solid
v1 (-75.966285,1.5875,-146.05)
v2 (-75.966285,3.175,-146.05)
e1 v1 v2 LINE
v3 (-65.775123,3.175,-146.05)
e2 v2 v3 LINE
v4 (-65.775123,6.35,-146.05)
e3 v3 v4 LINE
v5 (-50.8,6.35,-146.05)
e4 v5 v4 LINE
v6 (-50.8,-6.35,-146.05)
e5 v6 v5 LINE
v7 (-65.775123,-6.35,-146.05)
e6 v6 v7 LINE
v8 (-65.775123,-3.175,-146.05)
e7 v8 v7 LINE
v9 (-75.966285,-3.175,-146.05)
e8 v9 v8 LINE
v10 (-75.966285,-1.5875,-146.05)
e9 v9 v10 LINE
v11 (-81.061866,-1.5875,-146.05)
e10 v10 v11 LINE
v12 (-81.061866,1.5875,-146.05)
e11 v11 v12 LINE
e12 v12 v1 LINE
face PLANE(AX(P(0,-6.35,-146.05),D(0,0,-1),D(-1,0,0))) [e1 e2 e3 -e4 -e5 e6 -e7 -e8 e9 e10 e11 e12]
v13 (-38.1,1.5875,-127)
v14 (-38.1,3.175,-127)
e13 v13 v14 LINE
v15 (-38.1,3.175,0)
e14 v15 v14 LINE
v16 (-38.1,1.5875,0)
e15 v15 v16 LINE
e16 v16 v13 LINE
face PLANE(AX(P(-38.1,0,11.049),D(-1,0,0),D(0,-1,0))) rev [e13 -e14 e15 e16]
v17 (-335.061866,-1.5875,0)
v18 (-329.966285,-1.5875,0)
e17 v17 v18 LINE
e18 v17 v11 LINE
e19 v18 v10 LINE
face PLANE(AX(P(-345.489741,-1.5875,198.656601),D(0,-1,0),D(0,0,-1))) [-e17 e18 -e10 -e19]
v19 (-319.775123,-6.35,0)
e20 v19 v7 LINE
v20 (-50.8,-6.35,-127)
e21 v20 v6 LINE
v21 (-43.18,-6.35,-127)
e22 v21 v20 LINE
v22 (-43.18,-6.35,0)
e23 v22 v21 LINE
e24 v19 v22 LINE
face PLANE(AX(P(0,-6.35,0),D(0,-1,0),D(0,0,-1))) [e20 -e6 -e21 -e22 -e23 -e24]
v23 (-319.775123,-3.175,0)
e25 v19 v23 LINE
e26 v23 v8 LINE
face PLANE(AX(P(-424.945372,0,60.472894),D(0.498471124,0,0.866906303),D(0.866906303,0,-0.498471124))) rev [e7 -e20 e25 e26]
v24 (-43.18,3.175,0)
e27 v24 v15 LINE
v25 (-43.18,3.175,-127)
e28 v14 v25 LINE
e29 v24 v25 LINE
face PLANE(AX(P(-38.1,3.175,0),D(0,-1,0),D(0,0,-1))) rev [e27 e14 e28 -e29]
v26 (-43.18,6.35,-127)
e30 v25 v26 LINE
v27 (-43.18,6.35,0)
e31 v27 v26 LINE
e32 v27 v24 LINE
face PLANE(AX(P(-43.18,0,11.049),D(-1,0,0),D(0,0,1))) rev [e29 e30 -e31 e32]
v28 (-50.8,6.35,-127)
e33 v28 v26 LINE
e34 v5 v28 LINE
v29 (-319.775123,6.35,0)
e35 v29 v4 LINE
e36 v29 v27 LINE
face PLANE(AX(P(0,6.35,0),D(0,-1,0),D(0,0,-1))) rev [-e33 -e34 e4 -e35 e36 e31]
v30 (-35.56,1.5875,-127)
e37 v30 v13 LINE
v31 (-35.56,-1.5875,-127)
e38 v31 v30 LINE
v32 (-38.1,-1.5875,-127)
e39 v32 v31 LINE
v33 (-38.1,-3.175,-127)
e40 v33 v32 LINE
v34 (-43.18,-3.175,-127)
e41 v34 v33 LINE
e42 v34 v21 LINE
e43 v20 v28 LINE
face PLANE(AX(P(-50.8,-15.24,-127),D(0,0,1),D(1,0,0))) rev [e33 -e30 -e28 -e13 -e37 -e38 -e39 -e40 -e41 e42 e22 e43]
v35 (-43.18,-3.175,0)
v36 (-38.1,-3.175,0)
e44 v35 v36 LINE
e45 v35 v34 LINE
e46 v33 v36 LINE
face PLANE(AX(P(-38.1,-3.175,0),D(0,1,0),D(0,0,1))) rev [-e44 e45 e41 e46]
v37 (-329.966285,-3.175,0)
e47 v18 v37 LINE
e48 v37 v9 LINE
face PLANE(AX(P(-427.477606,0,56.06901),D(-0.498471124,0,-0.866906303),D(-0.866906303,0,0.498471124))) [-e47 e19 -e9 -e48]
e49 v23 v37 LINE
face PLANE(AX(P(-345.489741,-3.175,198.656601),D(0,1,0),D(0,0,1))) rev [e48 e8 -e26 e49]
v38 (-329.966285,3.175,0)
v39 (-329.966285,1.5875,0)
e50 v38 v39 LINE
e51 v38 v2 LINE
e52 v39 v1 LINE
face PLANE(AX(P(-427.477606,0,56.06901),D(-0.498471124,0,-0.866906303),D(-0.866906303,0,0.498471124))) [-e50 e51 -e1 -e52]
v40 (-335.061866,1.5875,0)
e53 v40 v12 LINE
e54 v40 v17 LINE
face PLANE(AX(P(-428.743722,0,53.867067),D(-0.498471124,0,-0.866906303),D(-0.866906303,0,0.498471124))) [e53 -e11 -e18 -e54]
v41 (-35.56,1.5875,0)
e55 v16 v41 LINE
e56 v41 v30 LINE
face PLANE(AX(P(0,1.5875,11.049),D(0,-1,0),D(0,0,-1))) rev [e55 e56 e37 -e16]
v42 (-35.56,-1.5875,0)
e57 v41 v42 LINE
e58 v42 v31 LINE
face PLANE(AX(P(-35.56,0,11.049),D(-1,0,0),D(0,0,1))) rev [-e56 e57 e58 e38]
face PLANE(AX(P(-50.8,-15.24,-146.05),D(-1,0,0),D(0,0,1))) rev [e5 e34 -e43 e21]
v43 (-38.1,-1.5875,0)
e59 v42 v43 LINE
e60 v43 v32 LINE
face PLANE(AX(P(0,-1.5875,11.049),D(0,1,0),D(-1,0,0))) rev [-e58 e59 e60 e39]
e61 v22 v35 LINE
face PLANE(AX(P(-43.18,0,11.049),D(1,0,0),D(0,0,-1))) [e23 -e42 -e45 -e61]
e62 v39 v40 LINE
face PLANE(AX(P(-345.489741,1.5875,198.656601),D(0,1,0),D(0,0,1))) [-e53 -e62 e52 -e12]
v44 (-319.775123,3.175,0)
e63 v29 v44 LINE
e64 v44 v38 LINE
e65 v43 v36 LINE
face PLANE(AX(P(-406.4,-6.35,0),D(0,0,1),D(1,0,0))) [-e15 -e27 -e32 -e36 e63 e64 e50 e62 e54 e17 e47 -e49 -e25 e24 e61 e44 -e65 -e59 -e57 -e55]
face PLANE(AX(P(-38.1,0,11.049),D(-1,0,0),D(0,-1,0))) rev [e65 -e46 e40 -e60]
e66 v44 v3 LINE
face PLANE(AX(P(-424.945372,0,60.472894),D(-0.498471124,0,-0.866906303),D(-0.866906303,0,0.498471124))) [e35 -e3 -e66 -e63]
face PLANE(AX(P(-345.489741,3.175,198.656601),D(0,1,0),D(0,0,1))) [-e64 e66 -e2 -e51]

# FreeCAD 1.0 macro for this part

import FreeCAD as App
import Part
import Sketcher
from FreeCAD import Vector
Q = App.Units.Quantity

doc = App.newDocument("Part")
params = doc.addObject("Spreadsheet::Sheet", "Params")
for row, (alias, value) in enumerate([
    ("sketch1_width", "16 in"),
    ("sketch1_width2", "6 in"),
    ("sketch1_height", "5.75 in"),
    ("pad1_length", "0.25 in"),
    ("pad1_length2", "0.25 in"),
    ("sketch2_height", "0.125 in"),
    ("pocket1_length", "1.5 in"),
    ("sketch3_height", "5.75 in"),
    ("sketch3_width", "0.125 in"),
    ("pocket2_length", "1.5 in"),
    ("sketch4_length", "1.5 in"),
    ("pocket3_length", "0.125 in"),
    ("sketch5_length", "1.5 in"),
    ("pocket4_length", "0.125 in"),
    ("sketch6_width", "0.2 in"),
    ("sketch6_width2", "0.1 in"),
    ("sketch6_width3", "1.7 in"),
    ("sketch6_height", "0.5 in"),
    ("sketch6_height2", "0.0625 in"),
    ("pocket5_length", "6.185 in"),
    ("sketch7_width", "0.2 in"),
    ("sketch7_width2", "1.7 in"),
    ("sketch7_width3", "0.1 in"),
    ("sketch7_height", "0.5 in"),
    ("sketch7_height2", "0.125 in"),
    ("sketch8_width", "2 in"),
    ("sketch8_height", "0.75 in"),
    ("pocket7_length", "0.85 in"),
], start=1):
    params.set(f"A{row}", alias)
    params.set(f"B{row}", "=" + value)
    params.setAlias(f"B{row}", alias)

body = doc.addObject("PartDesign::Body", "Body")

# Sketch on XZ plane
sketch1 = body.newObject("Sketcher::SketchObject", "Sketch")
sketch1.AttachmentSupport = (doc.getObject("XZ_Plane"), [""])
sketch1.MapMode = "FlatFace"
sketch1.addGeometry([
    Part.LineSegment(Vector(-406, 0, 0), Vector(0, 0, 0)),
    Part.LineSegment(Vector(0, 0, 0), Vector(0, -146, 0)),
    Part.LineSegment(Vector(0, -146, 0), Vector(-152, -146, 0)),
    Part.LineSegment(Vector(-152, -146, 0), Vector(-406, 0, 0)),
], False)
sketch1.addConstraint([
    Sketcher.Constraint("Coincident", 0, 2, 1, 1),
    Sketcher.Constraint("Coincident", 1, 2, 2, 1),
    Sketcher.Constraint("Coincident", 2, 2, 3, 1),
    Sketcher.Constraint("Coincident", 3, 2, 0, 1),
    Sketcher.Constraint("Horizontal", 0),
    Sketcher.Constraint("Vertical", 1),
    Sketcher.Constraint("Horizontal", 2),
    Sketcher.Constraint("Coincident", 0, 2, -1, 1),
    Sketcher.Constraint("DistanceX", 0, 1, 0, 2, Q("16 in")),
    Sketcher.Constraint("DistanceX", 2, 2, 2, 1, Q("6 in")),
    Sketcher.Constraint("DistanceY", 1, 2, 1, 1, Q("5.75 in")),
])
sketch1.setExpression("Constraints[8]", "Params.sketch1_width")
sketch1.setExpression("Constraints[9]", "Params.sketch1_width2")
sketch1.setExpression("Constraints[10]", "Params.sketch1_height")
pad1 = body.newObject("PartDesign::Pad", "Pad")
pad1.Profile = sketch1
pad1.Type = "TwoLengths"
pad1.setExpression("Length", "Params.pad1_length")
pad1.setExpression("Length2", "Params.pad1_length2")
pad1.Reversed = True

# Sketch on an angled plane
sketch2 = body.newObject("Sketcher::SketchObject", "Sketch001")
sketch2.Placement = App.Placement(Vector(-100.979615, 0, -175.616721), App.Rotation(Vector(-0.866906303, 0, 0.498471124), Vector(0, 1, 0), Vector(-0.498471124, 0, -0.866906303), "ZXY"))
sketch2.addGeometry([
    Part.LineSegment(Vector(59.3, 6.3, 0), Vector(59.3, 3.2, 0)),  # 0
    Part.LineSegment(Vector(59.3, 3.2, 0), Vector(352.3, 3.2, 0)),  # 1
    Part.LineSegment(Vector(352.3, 3.2, 0), Vector(352.3, 6.3, 0)),  # 2
    Part.LineSegment(Vector(352.3, 6.3, 0), Vector(59.3, 6.3, 0)),  # 3
    Part.LineSegment(Vector(59.3, -3.2, 0), Vector(59.3, -6.3, 0)),  # 4
    Part.LineSegment(Vector(59.3, -6.3, 0), Vector(352.3, -6.3, 0)),  # 5
    Part.LineSegment(Vector(352.3, -6.3, 0), Vector(352.3, -3.2, 0)),  # 6
    Part.LineSegment(Vector(352.3, -3.2, 0), Vector(59.3, -3.2, 0)),  # 7
], False)
sketch2.addConstraint([
    Sketcher.Constraint("Coincident", 0, 2, 1, 1),
    Sketcher.Constraint("Coincident", 1, 2, 2, 1),
    Sketcher.Constraint("Coincident", 2, 2, 3, 1),
    Sketcher.Constraint("Coincident", 3, 2, 0, 1),
    Sketcher.Constraint("Coincident", 4, 2, 5, 1),
    Sketcher.Constraint("Coincident", 5, 2, 6, 1),
    Sketcher.Constraint("Coincident", 6, 2, 7, 1),
    Sketcher.Constraint("Coincident", 7, 2, 4, 1),
    Sketcher.Constraint("Vertical", 0),
    Sketcher.Constraint("Horizontal", 1),
    Sketcher.Constraint("Vertical", 2),
    Sketcher.Constraint("Horizontal", 3),
    Sketcher.Constraint("Vertical", 4),
    Sketcher.Constraint("Horizontal", 5),
    Sketcher.Constraint("Vertical", 6),
    Sketcher.Constraint("Horizontal", 7),
    Sketcher.Constraint("Symmetric", 3, 2, 4, 2, -1),
    Sketcher.Constraint("Symmetric", 1, 2, 6, 2, -1),
    Sketcher.Constraint("DistanceY", 4, 2, 3, 2, Q("0.5 in")),
    Sketcher.Constraint("DistanceY", 0, 2, 0, 1, Q("0.125 in")),
    Sketcher.Constraint("DistanceX", 1, 1, 1, 2, 292.995909),
    Sketcher.Constraint("DistanceX", -1, 1, 1, 2, 352.310721),
])
sketch2.setExpression("Constraints[19]", "Params.sketch2_height")
pocket1 = body.newObject("PartDesign::Pocket", "Pocket")
pocket1.Profile = sketch2
pocket1.setExpression("Length", "Params.pocket1_length")

# Sketch on YZ plane
sketch3 = body.newObject("Sketcher::SketchObject", "Sketch002")
sketch3.AttachmentSupport = (doc.getObject("YZ_Plane"), [""])
sketch3.MapMode = "FlatFace"
sketch3.addGeometry([
    Part.LineSegment(Vector(6.3, 0, 0), Vector(3.2, 0, 0)),  # 0
    Part.LineSegment(Vector(3.2, 0, 0), Vector(3.2, -146.1, 0)),  # 1
    Part.LineSegment(Vector(3.2, -146.1, 0), Vector(6.3, -146.1, 0)),  # 2
    Part.LineSegment(Vector(6.3, -146.1, 0), Vector(6.3, 0, 0)),  # 3
    Part.LineSegment(Vector(-3.2, 0, 0), Vector(-6.3, 0, 0)),  # 4
    Part.LineSegment(Vector(-6.3, 0, 0), Vector(-6.3, -146.1, 0)),  # 5
    Part.LineSegment(Vector(-6.3, -146.1, 0), Vector(-3.2, -146.1, 0)),  # 6
    Part.LineSegment(Vector(-3.2, -146.1, 0), Vector(-3.2, 0, 0)),  # 7
], False)
sketch3.addConstraint([
    Sketcher.Constraint("Coincident", 0, 2, 1, 1),
    Sketcher.Constraint("Coincident", 1, 2, 2, 1),
    Sketcher.Constraint("Coincident", 2, 2, 3, 1),
    Sketcher.Constraint("Coincident", 3, 2, 0, 1),
    Sketcher.Constraint("Coincident", 4, 2, 5, 1),
    Sketcher.Constraint("Coincident", 5, 2, 6, 1),
    Sketcher.Constraint("Coincident", 6, 2, 7, 1),
    Sketcher.Constraint("Coincident", 7, 2, 4, 1),
    Sketcher.Constraint("Horizontal", 0),
    Sketcher.Constraint("Vertical", 1),
    Sketcher.Constraint("Horizontal", 2),
    Sketcher.Constraint("Vertical", 3),
    Sketcher.Constraint("Horizontal", 4),
    Sketcher.Constraint("Vertical", 5),
    Sketcher.Constraint("Horizontal", 6),
    Sketcher.Constraint("Vertical", 7),
    Sketcher.Constraint("Symmetric", 3, 2, 4, 2, -1, 1),
    Sketcher.Constraint("Symmetric", 1, 2, 6, 2, -2),
    Sketcher.Constraint("PointOnObject", 0, 2, -1),
    Sketcher.Constraint("DistanceY", 1, 2, 1, 1, Q("5.75 in")),
    Sketcher.Constraint("DistanceX", 4, 2, 3, 2, Q("0.5 in")),
    Sketcher.Constraint("DistanceX", 0, 2, 0, 1, Q("0.125 in")),
])
sketch3.setExpression("Constraints[19]", "Params.sketch3_height")
sketch3.setExpression("Constraints[21]", "Params.sketch3_width")
pocket2 = body.newObject("PartDesign::Pocket", "Pocket001")
pocket2.Profile = sketch3
pocket2.setExpression("Length", "Params.pocket2_length")

# Sketch on XZ plane
sketch4 = body.newObject("Sketcher::SketchObject", "Sketch003")
sketch4.AttachmentSupport = (doc.getObject("XZ_Plane"), [""])
sketch4.MapMode = "FlatFace"
sketch4.AttachmentOffset = App.Placement(Vector(0, 0, -0.25 * 25.4), App.Rotation())
sketch4.addGeometry([
    Part.LineSegment(Vector(-133, -113, 0), Vector(-76, -146, 0)),
    Part.LineSegment(Vector(-76, -146, 0), Vector(-152, -146, 0)),
    Part.LineSegment(Vector(-152, -146, 0), Vector(-133, -113, 0)),
], False)
sketch4.addConstraint([
    Sketcher.Constraint("Coincident", 0, 2, 1, 1),
    Sketcher.Constraint("Coincident", 1, 2, 2, 1),
    Sketcher.Constraint("Coincident", 2, 2, 0, 1),
    Sketcher.Constraint("Horizontal", 1),
    Sketcher.Constraint("Perpendicular", 0, 2),
    Sketcher.Constraint("DistanceX", 1, 2, -1, 1, Q("6 in")),
    Sketcher.Constraint("Distance", 2, Q("1.5 in")),
    Sketcher.Constraint("DistanceY", 0, 2, -1, 1, Q("5.75 in")),
    Sketcher.Constraint("Distance", 0, 66.26087),
])
sketch4.setExpression("Constraints[6]", "Params.sketch4_length")
pocket3 = body.newObject("PartDesign::Pocket", "Pocket002")
pocket3.Profile = sketch4
pocket3.setExpression("Length", "Params.pocket3_length")
pocket3.Reversed = True

# Sketch on XZ plane
sketch5 = body.newObject("Sketcher::SketchObject", "Sketch004")
sketch5.AttachmentSupport = (doc.getObject("XZ_Plane"), [""])
sketch5.MapMode = "FlatFace"
sketch5.AttachmentOffset = App.Placement(Vector(0, 0, 0.25 * 25.4), App.Rotation())
sketch5.addGeometry([
    Part.LineSegment(Vector(-76, -146, 0), Vector(-133, -113, 0)),
    Part.LineSegment(Vector(-133, -113, 0), Vector(-152, -146, 0)),
    Part.LineSegment(Vector(-152, -146, 0), Vector(-76, -146, 0)),
], False)
sketch5.addConstraint([
    Sketcher.Constraint("Coincident", 0, 2, 1, 1),
    Sketcher.Constraint("Coincident", 1, 2, 2, 1),
    Sketcher.Constraint("Coincident", 2, 2, 0, 1),
    Sketcher.Constraint("Horizontal", 2),
    Sketcher.Constraint("Perpendicular", 0, 1),
    Sketcher.Constraint("DistanceX", 1, 2, -1, 1, Q("6 in")),
    Sketcher.Constraint("Distance", 1, Q("1.5 in")),
    Sketcher.Constraint("DistanceY", 1, 2, -1, 1, Q("5.75 in")),
    Sketcher.Constraint("Distance", 0, 66.26087),
])
sketch5.setExpression("Constraints[6]", "Params.sketch5_length")
pocket4 = body.newObject("PartDesign::Pocket", "Pocket003")
pocket4.Profile = sketch5
pocket4.setExpression("Length", "Params.pocket4_length")

# Sketch on XY plane
sketch6 = body.newObject("Sketcher::SketchObject", "Sketch005")
sketch6.AttachmentSupport = (doc.getObject("XY_Plane"), [""])
sketch6.MapMode = "FlatFace"
sketch6.AttachmentOffset = App.Placement(Vector(0, 0, -5.75 * 25.4), App.Rotation())
sketch6.addGeometry([
    Part.LineSegment(Vector(-43.2, -3.2, 0), Vector(-38.1, -3.2, 0)),  # 0
    Part.LineSegment(Vector(-38.1, -3.2, 0), Vector(-38.1, -1.6, 0)),  # 1
    Part.LineSegment(Vector(-38.1, -1.6, 0), Vector(-35.6, -1.6, 0)),  # 2
    Part.LineSegment(Vector(-35.6, -1.6, 0), Vector(-35.6, 1.6, 0)),  # 3
    Part.LineSegment(Vector(-35.6, 1.6, 0), Vector(-38.1, 1.6, 0)),  # 4
    Part.LineSegment(Vector(-38.1, 1.6, 0), Vector(-38.1, 3.2, 0)),  # 5
    Part.LineSegment(Vector(-38.1, 3.2, 0), Vector(-43.2, 3.2, 0)),  # 6
    Part.LineSegment(Vector(-43.2, 3.2, 0), Vector(-43.2, 6.3, 0)),  # 7
    Part.LineSegment(Vector(-43.2, 6.3, 0), Vector(0, 6.3, 0)),  # 8
    Part.LineSegment(Vector(0, 6.3, 0), Vector(0, -6.3, 0)),  # 9
    Part.LineSegment(Vector(0, -6.3, 0), Vector(-43.2, -6.3, 0)),  # 10
    Part.LineSegment(Vector(-43.2, -6.3, 0), Vector(-43.2, -3.2, 0)),  # 11
], False)
sketch6.addConstraint([
    Sketcher.Constraint("Coincident", 0, 2, 1, 1),
    Sketcher.Constraint("Coincident", 1, 2, 2, 1),
    Sketcher.Constraint("Coincident", 2, 2, 3, 1),
    Sketcher.Constraint("Coincident", 3, 2, 4, 1),
    Sketcher.Constraint("Coincident", 4, 2, 5, 1),
    Sketcher.Constraint("Coincident", 5, 2, 6, 1),
    Sketcher.Constraint("Coincident", 6, 2, 7, 1),
    Sketcher.Constraint("Coincident", 7, 2, 8, 1),
    Sketcher.Constraint("Coincident", 8, 2, 9, 1),
    Sketcher.Constraint("Coincident", 9, 2, 10, 1),
    Sketcher.Constraint("Coincident", 10, 2, 11, 1),
    Sketcher.Constraint("Coincident", 11, 2, 0, 1),
    Sketcher.Constraint("Horizontal", 0),
    Sketcher.Constraint("Vertical", 1),
    Sketcher.Constraint("Horizontal", 2),
    Sketcher.Constraint("Vertical", 3),
    Sketcher.Constraint("Horizontal", 4),
    Sketcher.Constraint("Vertical", 5),
    Sketcher.Constraint("Horizontal", 6),
    Sketcher.Constraint("Vertical", 7),
    Sketcher.Constraint("Horizontal", 8),
    Sketcher.Constraint("Vertical", 9),
    Sketcher.Constraint("Horizontal", 10),
    Sketcher.Constraint("Vertical", 11),
    Sketcher.Constraint("Symmetric", 8, 2, 9, 2, -1, 1),
    Sketcher.Constraint("Symmetric", 1, 2, 4, 2, -1),
    Sketcher.Constraint("Symmetric", 6, 2, 11, 2, -1),
    Sketcher.Constraint("Equal", 3, 7),
    Sketcher.Constraint("DistanceX", 0, 1, 0, 2, Q("0.2 in")),
    Sketcher.Constraint("DistanceX", 2, 1, 2, 2, Q("0.1 in")),
    Sketcher.Constraint("DistanceX", 8, 1, 8, 2, Q("1.7 in")),
    Sketcher.Constraint("DistanceY", 9, 2, 9, 1, Q("0.5 in")),
    Sketcher.Constraint("DistanceY", 1, 1, 1, 2, Q("0.0625 in")),
])
sketch6.setExpression("Constraints[28]", "Params.sketch6_width")
sketch6.setExpression("Constraints[29]", "Params.sketch6_width2")
sketch6.setExpression("Constraints[30]", "Params.sketch6_width3")
sketch6.setExpression("Constraints[31]", "Params.sketch6_height")
sketch6.setExpression("Constraints[32]", "Params.sketch6_height2")
pocket5 = body.newObject("PartDesign::Pocket", "Pocket004")
pocket5.Profile = sketch6
pocket5.setExpression("Length", "Params.pocket5_length")
pocket5.Reversed = True

# Sketch on an angled plane
sketch7 = body.newObject("Sketcher::SketchObject", "Sketch006")
sketch7.Placement = App.Placement(Vector(-51.420385, 0, 29.566721), App.Rotation(Vector(0.498471124, 0, 0.866906303), Vector(0, 1, 0), Vector(-0.866906303, 0, 0.498471124), "ZXY"))
sketch7.addGeometry([
    Part.LineSegment(Vector(-164.5, 3.2, 0), Vector(-159.4, 3.2, 0)),  # 0
    Part.LineSegment(Vector(-159.4, 3.2, 0), Vector(-159.4, 6.3, 0)),  # 1
    Part.LineSegment(Vector(-159.4, 6.3, 0), Vector(-202.6, 6.3, 0)),  # 2
    Part.LineSegment(Vector(-202.6, 6.3, 0), Vector(-202.6, -6.3, 0)),  # 3
    Part.LineSegment(Vector(-202.6, -6.3, 0), Vector(-159.4, -6.3, 0)),  # 4
    Part.LineSegment(Vector(-159.4, -6.3, 0), Vector(-159.4, -3.2, 0)),  # 5
    Part.LineSegment(Vector(-159.4, -3.2, 0), Vector(-164.5, -3.2, 0)),  # 6
    Part.LineSegment(Vector(-164.5, -3.2, 0), Vector(-164.5, -1.6, 0)),  # 7
    Part.LineSegment(Vector(-164.5, -1.6, 0), Vector(-167, -1.6, 0)),  # 8
    Part.LineSegment(Vector(-167, -1.6, 0), Vector(-167, 1.6, 0)),  # 9
    Part.LineSegment(Vector(-167, 1.6, 0), Vector(-164.5, 1.6, 0)),  # 10
    Part.LineSegment(Vector(-164.5, 1.6, 0), Vector(-164.5, 3.2, 0)),  # 11
], False)
sketch7.addConstraint([
    Sketcher.Constraint("Coincident", 0, 2, 1, 1),
    Sketcher.Constraint("Coincident", 1, 2, 2, 1),
    Sketcher.Constraint("Coincident", 2, 2, 3, 1),
    Sketcher.Constraint("Coincident", 3, 2, 4, 1),
    Sketcher.Constraint("Coincident", 4, 2, 5, 1),
    Sketcher.Constraint("Coincident", 5, 2, 6, 1),
    Sketcher.Constraint("Coincident", 6, 2, 7, 1),
    Sketcher.Constraint("Coincident", 7, 2, 8, 1),
    Sketcher.Constraint("Coincident", 8, 2, 9, 1),
    Sketcher.Constraint("Coincident", 9, 2, 10, 1),
    Sketcher.Constraint("Coincident", 10, 2, 11, 1),
    Sketcher.Constraint("Coincident", 11, 2, 0, 1),
    Sketcher.Constraint("Horizontal", 0),
    Sketcher.Constraint("Vertical", 1),
    Sketcher.Constraint("Horizontal", 2),
    Sketcher.Constraint("Vertical", 3),
    Sketcher.Constraint("Horizontal", 4),
    Sketcher.Constraint("Vertical", 5),
    Sketcher.Constraint("Horizontal", 6),
    Sketcher.Constraint("Vertical", 7),
    Sketcher.Constraint("Horizontal", 8),
    Sketcher.Constraint("Vertical", 9),
    Sketcher.Constraint("Horizontal", 10),
    Sketcher.Constraint("Vertical", 11),
    Sketcher.Constraint("Symmetric", 1, 2, 4, 2, -1),
    Sketcher.Constraint("Symmetric", 7, 2, 10, 2, -1),
    Sketcher.Constraint("Equal", 1, 5),
    Sketcher.Constraint("Equal", 5, 9),
    Sketcher.Constraint("DistanceX", 0, 1, 0, 2, Q("0.2 in")),
    Sketcher.Constraint("DistanceX", 2, 2, 2, 1, Q("1.7 in")),
    Sketcher.Constraint("DistanceX", 8, 2, 8, 1, Q("0.1 in")),
    Sketcher.Constraint("DistanceY", 3, 2, 3, 1, Q("0.5 in")),
    Sketcher.Constraint("DistanceY", 1, 1, 1, 2, Q("0.125 in")),
    Sketcher.Constraint("DistanceX", 0, 2, -1, 1, 159.398665),
])
sketch7.setExpression("Constraints[28]", "Params.sketch7_width")
sketch7.setExpression("Constraints[29]", "Params.sketch7_width2")
sketch7.setExpression("Constraints[30]", "Params.sketch7_width3")
sketch7.setExpression("Constraints[31]", "Params.sketch7_height")
sketch7.setExpression("Constraints[32]", "Params.sketch7_height2")
pocket6 = body.newObject("PartDesign::Pocket", "Pocket005")
pocket6.Profile = sketch7
pocket6.Type = "ThroughAll"
pocket6.Midplane = True

# Sketch on XZ plane
sketch8 = body.newObject("Sketcher::SketchObject", "Sketch007")
sketch8.AttachmentSupport = (doc.getObject("XZ_Plane"), [""])
sketch8.MapMode = "FlatFace"
sketch8.AttachmentOffset = App.Placement(Vector(0, 0, -0.25 * 25.4), App.Rotation())
sketch8.addGeometry([
    Part.LineSegment(Vector(-51, -146, 0), Vector(-51, -127, 0)),
    Part.LineSegment(Vector(-51, -127, 0), Vector(0, -127, 0)),
    Part.LineSegment(Vector(0, -127, 0), Vector(0, -146, 0)),
    Part.LineSegment(Vector(0, -146, 0), Vector(-51, -146, 0)),
], False)
sketch8.addConstraint([
    Sketcher.Constraint("Coincident", 0, 2, 1, 1),
    Sketcher.Constraint("Coincident", 1, 2, 2, 1),
    Sketcher.Constraint("Coincident", 2, 2, 3, 1),
    Sketcher.Constraint("Coincident", 3, 2, 0, 1),
    Sketcher.Constraint("Vertical", 0),
    Sketcher.Constraint("Horizontal", 1),
    Sketcher.Constraint("Vertical", 2),
    Sketcher.Constraint("Horizontal", 3),
    Sketcher.Constraint("PointOnObject", 1, 2, -2),
    Sketcher.Constraint("DistanceX", 1, 1, 1, 2, Q("2 in")),
    Sketcher.Constraint("DistanceY", 0, 2, -1, 1, Q("5 in")),
    Sketcher.Constraint("DistanceY", 0, 1, 0, 2, Q("0.75 in")),
])
sketch8.setExpression("Constraints[9]", "Params.sketch8_width")
sketch8.setExpression("Constraints[11]", "Params.sketch8_height")
pocket7 = body.newObject("PartDesign::Pocket", "Pocket006")
pocket7.Profile = sketch8
pocket7.setExpression("Length", "Params.pocket7_length")
pocket7.Reversed = True

doc.recompute()
